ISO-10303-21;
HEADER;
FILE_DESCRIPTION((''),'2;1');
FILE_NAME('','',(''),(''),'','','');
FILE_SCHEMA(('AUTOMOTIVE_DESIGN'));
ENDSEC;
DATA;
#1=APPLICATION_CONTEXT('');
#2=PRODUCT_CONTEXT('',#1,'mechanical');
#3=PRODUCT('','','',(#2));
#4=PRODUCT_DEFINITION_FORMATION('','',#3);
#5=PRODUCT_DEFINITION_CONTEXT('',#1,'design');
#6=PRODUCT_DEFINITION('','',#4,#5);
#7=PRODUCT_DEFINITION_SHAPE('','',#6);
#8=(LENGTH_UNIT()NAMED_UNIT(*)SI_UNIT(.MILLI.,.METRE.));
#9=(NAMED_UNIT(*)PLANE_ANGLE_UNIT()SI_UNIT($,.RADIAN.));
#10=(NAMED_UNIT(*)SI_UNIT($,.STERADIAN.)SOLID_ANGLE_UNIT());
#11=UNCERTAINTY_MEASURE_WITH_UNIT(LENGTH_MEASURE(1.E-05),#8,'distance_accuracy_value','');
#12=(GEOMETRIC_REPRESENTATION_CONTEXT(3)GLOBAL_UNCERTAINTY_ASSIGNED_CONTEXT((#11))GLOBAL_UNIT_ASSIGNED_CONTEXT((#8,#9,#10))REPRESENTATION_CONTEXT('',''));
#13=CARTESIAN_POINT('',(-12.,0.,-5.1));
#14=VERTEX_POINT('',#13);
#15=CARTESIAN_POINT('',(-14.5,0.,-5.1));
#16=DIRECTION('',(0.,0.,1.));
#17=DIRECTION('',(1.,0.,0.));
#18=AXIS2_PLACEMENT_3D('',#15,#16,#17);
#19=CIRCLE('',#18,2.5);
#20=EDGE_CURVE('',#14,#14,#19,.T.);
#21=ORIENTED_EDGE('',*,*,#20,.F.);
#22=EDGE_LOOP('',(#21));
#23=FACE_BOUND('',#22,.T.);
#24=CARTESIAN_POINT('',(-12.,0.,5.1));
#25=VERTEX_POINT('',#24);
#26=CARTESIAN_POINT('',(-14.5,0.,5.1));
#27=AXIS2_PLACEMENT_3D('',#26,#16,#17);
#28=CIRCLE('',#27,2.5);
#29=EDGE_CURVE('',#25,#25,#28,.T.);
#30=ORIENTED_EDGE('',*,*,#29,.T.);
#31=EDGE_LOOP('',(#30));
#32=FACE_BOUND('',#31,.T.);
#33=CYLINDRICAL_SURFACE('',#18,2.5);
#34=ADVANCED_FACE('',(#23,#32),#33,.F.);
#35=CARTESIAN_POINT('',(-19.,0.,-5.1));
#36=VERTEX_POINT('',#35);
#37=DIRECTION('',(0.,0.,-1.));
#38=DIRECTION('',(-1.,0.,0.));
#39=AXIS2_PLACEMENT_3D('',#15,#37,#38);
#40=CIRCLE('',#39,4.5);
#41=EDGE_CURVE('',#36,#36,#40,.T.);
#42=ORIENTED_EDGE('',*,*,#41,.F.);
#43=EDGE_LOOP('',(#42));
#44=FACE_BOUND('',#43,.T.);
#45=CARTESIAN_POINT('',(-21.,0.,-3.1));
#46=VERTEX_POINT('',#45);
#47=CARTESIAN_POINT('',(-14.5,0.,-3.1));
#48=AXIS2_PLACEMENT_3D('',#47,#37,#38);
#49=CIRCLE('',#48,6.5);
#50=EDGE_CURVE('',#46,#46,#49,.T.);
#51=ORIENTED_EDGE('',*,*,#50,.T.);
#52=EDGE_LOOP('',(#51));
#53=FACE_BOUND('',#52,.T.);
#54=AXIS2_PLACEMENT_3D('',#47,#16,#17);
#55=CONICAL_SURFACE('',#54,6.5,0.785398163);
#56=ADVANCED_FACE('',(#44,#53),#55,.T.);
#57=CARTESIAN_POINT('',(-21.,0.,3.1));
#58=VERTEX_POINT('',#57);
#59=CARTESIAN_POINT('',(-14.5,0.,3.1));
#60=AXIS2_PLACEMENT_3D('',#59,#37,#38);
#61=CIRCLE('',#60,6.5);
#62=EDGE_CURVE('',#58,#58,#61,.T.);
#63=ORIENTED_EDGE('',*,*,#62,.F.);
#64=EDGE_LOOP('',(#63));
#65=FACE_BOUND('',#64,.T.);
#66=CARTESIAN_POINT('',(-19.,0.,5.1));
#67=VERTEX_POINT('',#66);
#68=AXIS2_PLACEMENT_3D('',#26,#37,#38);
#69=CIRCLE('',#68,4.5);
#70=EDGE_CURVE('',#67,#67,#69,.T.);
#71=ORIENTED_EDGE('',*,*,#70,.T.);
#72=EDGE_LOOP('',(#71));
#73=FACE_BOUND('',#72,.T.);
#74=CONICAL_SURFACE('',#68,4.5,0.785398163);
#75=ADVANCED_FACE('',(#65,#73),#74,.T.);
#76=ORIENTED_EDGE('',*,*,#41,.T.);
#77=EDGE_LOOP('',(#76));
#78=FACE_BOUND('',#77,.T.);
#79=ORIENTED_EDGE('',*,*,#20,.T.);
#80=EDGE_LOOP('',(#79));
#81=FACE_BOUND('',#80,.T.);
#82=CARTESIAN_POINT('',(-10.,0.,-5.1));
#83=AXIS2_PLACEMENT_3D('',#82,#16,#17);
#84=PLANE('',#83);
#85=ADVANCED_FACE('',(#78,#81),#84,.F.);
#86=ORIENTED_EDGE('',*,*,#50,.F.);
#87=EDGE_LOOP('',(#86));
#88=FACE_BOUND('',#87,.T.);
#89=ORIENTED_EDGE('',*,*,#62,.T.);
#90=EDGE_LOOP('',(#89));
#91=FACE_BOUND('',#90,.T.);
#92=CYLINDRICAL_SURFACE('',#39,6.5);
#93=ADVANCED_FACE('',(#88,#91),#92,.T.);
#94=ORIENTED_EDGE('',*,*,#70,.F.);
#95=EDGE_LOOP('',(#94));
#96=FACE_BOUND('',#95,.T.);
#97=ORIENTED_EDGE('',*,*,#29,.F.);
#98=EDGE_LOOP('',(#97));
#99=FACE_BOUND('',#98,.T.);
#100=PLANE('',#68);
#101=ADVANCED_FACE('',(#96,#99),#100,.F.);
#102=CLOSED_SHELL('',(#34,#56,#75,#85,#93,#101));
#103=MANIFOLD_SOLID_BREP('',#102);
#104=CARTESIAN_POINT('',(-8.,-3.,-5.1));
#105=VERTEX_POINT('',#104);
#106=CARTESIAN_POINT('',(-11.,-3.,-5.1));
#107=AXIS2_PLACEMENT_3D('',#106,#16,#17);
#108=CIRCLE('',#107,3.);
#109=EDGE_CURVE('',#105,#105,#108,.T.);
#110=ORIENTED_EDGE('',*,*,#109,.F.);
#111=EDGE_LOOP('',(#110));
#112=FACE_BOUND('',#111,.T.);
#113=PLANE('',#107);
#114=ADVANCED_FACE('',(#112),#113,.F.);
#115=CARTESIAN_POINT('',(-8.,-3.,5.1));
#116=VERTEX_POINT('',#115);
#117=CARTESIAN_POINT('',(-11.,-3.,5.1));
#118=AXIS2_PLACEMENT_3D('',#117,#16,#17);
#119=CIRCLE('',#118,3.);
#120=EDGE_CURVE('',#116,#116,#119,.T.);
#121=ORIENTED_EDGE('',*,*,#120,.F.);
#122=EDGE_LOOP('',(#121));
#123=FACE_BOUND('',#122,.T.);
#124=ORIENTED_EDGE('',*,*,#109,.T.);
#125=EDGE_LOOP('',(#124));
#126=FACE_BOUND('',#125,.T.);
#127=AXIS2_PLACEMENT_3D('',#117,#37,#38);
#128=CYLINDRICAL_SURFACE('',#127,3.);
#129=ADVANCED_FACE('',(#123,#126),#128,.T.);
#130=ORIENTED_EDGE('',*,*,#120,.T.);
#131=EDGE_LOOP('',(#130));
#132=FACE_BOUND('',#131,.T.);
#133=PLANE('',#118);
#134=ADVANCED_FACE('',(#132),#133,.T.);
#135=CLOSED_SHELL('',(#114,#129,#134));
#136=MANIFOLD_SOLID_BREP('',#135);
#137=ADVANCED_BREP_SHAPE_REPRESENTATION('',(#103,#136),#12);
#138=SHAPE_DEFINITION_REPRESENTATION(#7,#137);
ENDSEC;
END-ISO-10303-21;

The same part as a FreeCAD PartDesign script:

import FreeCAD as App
import Part
import Sketcher
Q = App.Units.Quantity

doc = App.newDocument("Part")
body = doc.addObject("PartDesign::Body", "Body")

sketch1 = body.newObject("Sketcher::SketchObject", "Sketch")
sketch1.AttachmentSupport = (doc.getObject("XY_Plane"), [""])
sketch1.MapMode = "FlatFace"
sketch1.addGeometry(Part.Circle(App.Vector(-11, -3, 0), App.Vector(0, 0, 1), 3), False)
sketch1.addConstraint(Sketcher.Constraint("Diameter", 0, Q("6 mm")))
sketch1.addConstraint(Sketcher.Constraint("DistanceX", 0, 3, -1, 1, Q("11 mm")))
sketch1.addConstraint(Sketcher.Constraint("DistanceY", 0, 3, -1, 1, Q("3 mm")))
pad1 = body.newObject("PartDesign::Pad", "Pad")
pad1.Profile = sketch1
pad1.Type = "TwoLengths"
pad1.Length = 5.1
pad1.Length2 = 5.1
body2 = doc.addObject("PartDesign::Body", "Body001")

sketch2 = body2.newObject("Sketcher::SketchObject", "Sketch001")
sketch2.AttachmentSupport = (doc.getObject("XZ_Plane001"), [""])
sketch2.MapMode = "FlatFace"
sketch2.addGeometry(Part.LineSegment(App.Vector(-10, 5.1, 0), App.Vector(-8, 3.1, 0)), False)
sketch2.addGeometry(Part.LineSegment(App.Vector(-8, 3.1, 0), App.Vector(-8, -3.1, 0)), False)
sketch2.addGeometry(Part.LineSegment(App.Vector(-8, -3.1, 0), App.Vector(-10, -5.1, 0)), False)
sketch2.addGeometry(Part.LineSegment(App.Vector(-10, -5.1, 0), App.Vector(-14.5, -5.1, 0)), False)
sketch2.addGeometry(Part.LineSegment(App.Vector(-14.5, -5.1, 0), App.Vector(-14.5, 5.1, 0)), False)
sketch2.addGeometry(Part.LineSegment(App.Vector(-14.5, 5.1, 0), App.Vector(-10, 5.1, 0)), False)
sketch2.addGeometry(Part.LineSegment(App.Vector(-14.5, -5.1, 0), App.Vector(-14.5, 5.1, 0)), True)
sketch2.addConstraint(Sketcher.Constraint("Coincident", 0, 2, 1, 1))
sketch2.addConstraint(Sketcher.Constraint("Coincident", 1, 2, 2, 1))
sketch2.addConstraint(Sketcher.Constraint("Coincident", 2, 2, 3, 1))
sketch2.addConstraint(Sketcher.Constraint("Coincident", 3, 2, 4, 1))
sketch2.addConstraint(Sketcher.Constraint("Coincident", 4, 2, 5, 1))
sketch2.addConstraint(Sketcher.Constraint("Coincident", 5, 2, 0, 1))
sketch2.addConstraint(Sketcher.Constraint("Vertical", 1))
sketch2.addConstraint(Sketcher.Constraint("Horizontal", 3))
sketch2.addConstraint(Sketcher.Constraint("Vertical", 4))
sketch2.addConstraint(Sketcher.Constraint("Horizontal", 5))
sketch2.addConstraint(Sketcher.Constraint("Vertical", 6))
sketch2.addConstraint(Sketcher.Constraint("Coincident", 6, 1, 3, 2))
sketch2.addConstraint(Sketcher.Constraint("Symmetric", 2, 2, 5, 2, -1))
sketch2.addConstraint(Sketcher.Constraint("Perpendicular", 0, 2))
sketch2.addConstraint(Sketcher.Constraint("Horizontal", 5, 2, 6, 2))
sketch2.addConstraint(Sketcher.Constraint("Equal", 0, 2))
sketch2.addConstraint(Sketcher.Constraint("DistanceX", 3, 2, 3, 1, Q("4.5 mm")))
sketch2.addConstraint(Sketcher.Constraint("DistanceY", 1, 2, 1, 1, Q("6.2 mm")))
sketch2.addConstraint(Sketcher.Constraint("DistanceY", 4, 1, 4, 2, Q("10.2 mm")))
sketch2.addConstraint(Sketcher.Constraint("DistanceX", 0, 2, -1, 1, Q("8 mm")))
revolution = body2.newObject("PartDesign::Revolution", "Revolution")
revolution.Profile = sketch2
revolution.ReferenceAxis = (sketch2, ["Axis0"])
revolution.Angle = 360

sketch3 = body2.newObject("Sketcher::SketchObject", "Sketch002")
sketch3.AttachmentSupport = (doc.getObject("XY_Plane001"), [""])
sketch3.MapMode = "FlatFace"
sketch3.addGeometry(Part.Circle(App.Vector(-14.5, 0, 0), App.Vector(0, 0, 1), 2.5), False)
sketch3.addConstraint(Sketcher.Constraint("PointOnObject", 0, 3, -1))
sketch3.addConstraint(Sketcher.Constraint("Diameter", 0, Q("5 mm")))
sketch3.addConstraint(Sketcher.Constraint("DistanceX", 0, 3, -1, 1, Q("14.5 mm")))
pocket1 = body2.newObject("PartDesign::Pocket", "Pocket")
pocket1.Profile = sketch3
pocket1.Type = "ThroughAll"
pocket1.Midplane = True

doc.recompute()
